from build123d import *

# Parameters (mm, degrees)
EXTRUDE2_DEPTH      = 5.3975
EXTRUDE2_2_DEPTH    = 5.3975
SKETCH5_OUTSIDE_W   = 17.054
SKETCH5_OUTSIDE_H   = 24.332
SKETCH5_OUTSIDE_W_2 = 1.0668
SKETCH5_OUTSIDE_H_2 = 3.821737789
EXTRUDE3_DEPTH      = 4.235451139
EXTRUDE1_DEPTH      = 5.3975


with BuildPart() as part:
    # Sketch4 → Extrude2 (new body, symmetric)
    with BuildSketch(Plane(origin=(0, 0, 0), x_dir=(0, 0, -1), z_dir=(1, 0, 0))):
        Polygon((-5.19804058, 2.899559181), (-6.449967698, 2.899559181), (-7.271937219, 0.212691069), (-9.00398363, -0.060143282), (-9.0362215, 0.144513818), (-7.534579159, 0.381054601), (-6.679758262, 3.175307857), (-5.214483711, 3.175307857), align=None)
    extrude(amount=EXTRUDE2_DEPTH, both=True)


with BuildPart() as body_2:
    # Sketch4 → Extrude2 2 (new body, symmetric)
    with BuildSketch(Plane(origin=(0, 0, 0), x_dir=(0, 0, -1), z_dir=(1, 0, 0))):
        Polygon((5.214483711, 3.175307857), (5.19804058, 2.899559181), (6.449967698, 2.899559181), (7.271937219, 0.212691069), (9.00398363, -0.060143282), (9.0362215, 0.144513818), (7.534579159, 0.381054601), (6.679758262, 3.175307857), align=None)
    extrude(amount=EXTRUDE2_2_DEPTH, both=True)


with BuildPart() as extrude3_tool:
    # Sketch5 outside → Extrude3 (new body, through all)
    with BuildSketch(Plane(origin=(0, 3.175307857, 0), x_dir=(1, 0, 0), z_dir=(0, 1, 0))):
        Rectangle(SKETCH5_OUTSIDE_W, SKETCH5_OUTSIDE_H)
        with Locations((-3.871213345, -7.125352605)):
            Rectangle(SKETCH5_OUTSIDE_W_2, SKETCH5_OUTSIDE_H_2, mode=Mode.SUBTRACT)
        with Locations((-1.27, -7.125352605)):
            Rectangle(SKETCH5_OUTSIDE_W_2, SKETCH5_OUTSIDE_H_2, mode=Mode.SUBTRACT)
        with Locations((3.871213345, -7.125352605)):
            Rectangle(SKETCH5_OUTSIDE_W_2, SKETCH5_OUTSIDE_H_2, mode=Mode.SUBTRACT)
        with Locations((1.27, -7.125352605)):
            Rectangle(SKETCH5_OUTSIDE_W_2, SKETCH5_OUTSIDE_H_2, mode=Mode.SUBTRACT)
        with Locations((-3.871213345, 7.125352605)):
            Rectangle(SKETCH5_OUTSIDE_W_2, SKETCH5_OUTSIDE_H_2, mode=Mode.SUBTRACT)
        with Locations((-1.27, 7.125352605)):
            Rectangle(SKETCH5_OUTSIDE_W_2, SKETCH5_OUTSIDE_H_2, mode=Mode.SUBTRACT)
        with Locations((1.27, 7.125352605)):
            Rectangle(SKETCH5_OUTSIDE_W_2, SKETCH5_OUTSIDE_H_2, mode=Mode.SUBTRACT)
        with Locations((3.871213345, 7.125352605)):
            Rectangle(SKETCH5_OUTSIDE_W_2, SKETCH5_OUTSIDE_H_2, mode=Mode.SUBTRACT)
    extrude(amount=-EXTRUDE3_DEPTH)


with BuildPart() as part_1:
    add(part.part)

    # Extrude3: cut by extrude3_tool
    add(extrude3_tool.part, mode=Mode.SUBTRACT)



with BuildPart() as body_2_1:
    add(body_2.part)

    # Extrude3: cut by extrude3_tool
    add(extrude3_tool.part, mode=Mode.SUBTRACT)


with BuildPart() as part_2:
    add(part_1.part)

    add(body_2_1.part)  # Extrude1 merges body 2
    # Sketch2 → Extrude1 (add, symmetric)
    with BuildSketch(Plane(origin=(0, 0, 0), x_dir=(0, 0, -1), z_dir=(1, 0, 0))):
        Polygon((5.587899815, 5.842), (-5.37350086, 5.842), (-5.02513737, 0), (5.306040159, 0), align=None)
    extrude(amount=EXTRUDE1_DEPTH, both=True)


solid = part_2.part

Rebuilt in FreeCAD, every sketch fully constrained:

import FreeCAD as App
import Part
import Sketcher
Q = App.Units.Quantity


def add_polygon(sketch, points):
    """Adds a closed chain of lines whose ends are joined by coincident constraints."""
    first, n = sketch.GeometryCount, len(points)
    for a, b in zip(points, points[1:] + points[:1]):
        sketch.addGeometry(Part.LineSegment(App.Vector(*a, 0), App.Vector(*b, 0)), False)
    for i in range(n):
        sketch.addConstraint(Sketcher.Constraint("Coincident", first + i, 2, first + (i + 1) % n, 1))

doc = App.newDocument("Part")
body = doc.addObject("PartDesign::Body", "Body")

sketch1 = body.newObject("Sketcher::SketchObject", "Sketch")
sketch1.AttachmentSupport = (doc.getObject("YZ_Plane"), [""])
sketch1.MapMode = "FlatFace"
add_polygon(sketch1, [(2.9, 6.45), (2.9, 5.2), (3.18, 5.21), (3.18, 6.68), (0.38, 7.53), (0.14, 9.04), (-0.06, 9), (0.21, 7.27)])
sketch1.addConstraint(Sketcher.Constraint("Vertical", 0))
sketch1.addConstraint(Sketcher.Constraint("Vertical", 2))
sketch1.addConstraint(Sketcher.Constraint("Perpendicular", 4, 5))
sketch1.addConstraint(Sketcher.Constraint("Perpendicular", 5, 6))
sketch1.addConstraint(Sketcher.Constraint("Parallel", 3, 7))
sketch1.addConstraint(Sketcher.Constraint("DistanceY", 1, 2, 5, 2, Q("3.7895 mm")))
sketch1.addConstraint(Sketcher.Constraint("Distance", 1, Q("0.276238 mm")))
sketch1.addConstraint(Sketcher.Constraint("Distance", 4, Q("1.520158 mm")))
sketch1.addConstraint(Sketcher.Constraint("Distance", 5, Q("0.207181 mm")))
sketch1.addConstraint(Sketcher.Constraint("DistanceY", 0, 2, 0, 1, Q("1.251927 mm")))
sketch1.addConstraint(Sketcher.Constraint("DistanceY", 2, 1, 2, 2, Q("1.465275 mm")))
sketch1.addConstraint(Sketcher.Constraint("DistanceX", -1, 1, 0, 2, Q("2.899559 mm")))
sketch1.addConstraint(Sketcher.Constraint("DistanceY", -1, 1, 0, 2, Q("5.198041 mm")))
sketch1.addConstraint(Sketcher.Constraint("DistanceY", -1, 1, 2, 2, Q("6.679758 mm")))
sketch1.addConstraint(Sketcher.Constraint("DistanceY", -1, 1, 3, 2, Q("7.534579 mm")))
sketch1.addConstraint(Sketcher.Constraint("DistanceX", -1, 1, 6, 2, Q("0.212691 mm")))
pad1 = body.newObject("PartDesign::Pad", "Pad")
pad1.Profile = sketch1
pad1.Length = Q("0.425 in")
pad1.Midplane = True
body2 = doc.addObject("PartDesign::Body", "Body001")

sketch2 = body2.newObject("Sketcher::SketchObject", "Sketch001")
sketch2.AttachmentSupport = (doc.getObject("YZ_Plane001"), [""])
sketch2.MapMode = "FlatFace"
add_polygon(sketch2, [(3.18, -5.21), (2.9, -5.2), (2.9, -6.45), (0.21, -7.27), (-0.06, -9), (0.14, -9.04), (0.38, -7.53), (3.18, -6.68)])
sketch2.addConstraint(Sketcher.Constraint("Vertical", 1))
sketch2.addConstraint(Sketcher.Constraint("Vertical", 7))
sketch2.addConstraint(Sketcher.Constraint("Perpendicular", 3, 4))
sketch2.addConstraint(Sketcher.Constraint("Perpendicular", 4, 5))
sketch2.addConstraint(Sketcher.Constraint("Parallel", 2, 6))
sketch2.addConstraint(Sketcher.Constraint("Distance", 0, Q("0.276238 mm")))
sketch2.addConstraint(Sketcher.Constraint("Distance", 4, Q("0.207181 mm")))
sketch2.addConstraint(Sketcher.Constraint("Distance", 5, Q("1.520158 mm")))
sketch2.addConstraint(Sketcher.Constraint("DistanceY", 1, 2, 1, 1, Q("1.251927 mm")))
sketch2.addConstraint(Sketcher.Constraint("DistanceY", 7, 1, 7, 2, Q("1.465275 mm")))
sketch2.addConstraint(Sketcher.Constraint("DistanceX", -1, 1, 0, 2, Q("2.899559 mm")))
sketch2.addConstraint(Sketcher.Constraint("DistanceY", 0, 2, -1, 1, Q("5.198041 mm")))
sketch2.addConstraint(Sketcher.Constraint("DistanceX", -1, 1, 2, 2, Q("0.212691 mm")))
sketch2.addConstraint(Sketcher.Constraint("DistanceY", 4, 2, -1, 1, Q("9.036221 mm")))
sketch2.addConstraint(Sketcher.Constraint("DistanceY", 5, 2, -1, 1, Q("7.534579 mm")))
sketch2.addConstraint(Sketcher.Constraint("DistanceY", 6, 2, -1, 1, Q("6.679758 mm")))
pad2 = body2.newObject("PartDesign::Pad", "Pad001")
pad2.Profile = sketch2
pad2.Length = Q("0.425 in")
pad2.Midplane = True
body3 = doc.addObject("PartDesign::Body", "Body002")

sketch3 = body3.newObject("Sketcher::SketchObject", "Sketch002")
sketch3.AttachmentSupport = (doc.getObject("XZ_Plane002"), [""])
sketch3.MapMode = "FlatFace"
sketch3.AttachmentOffset = App.Placement(App.Vector(0, 0, -3.175308), App.Rotation())
add_polygon(sketch3, [(-8.5, -12.2), (-8.5, 12.2), (8.5, 12.2), (8.5, -12.2)])
add_polygon(sketch3, [(-3.3, 9), (-4.4, 9), (-4.4, 5.2), (-3.3, 5.2)])
add_polygon(sketch3, [(-0.7, 9), (-1.8, 9), (-1.8, 5.2), (-0.7, 5.2)])
add_polygon(sketch3, [(1.8, 9), (0.7, 9), (0.7, 5.2), (1.8, 5.2)])
add_polygon(sketch3, [(4.4, 9), (3.3, 9), (3.3, 5.2), (4.4, 5.2)])
add_polygon(sketch3, [(-3.3, -5.2), (-4.4, -5.2), (-4.4, -9), (-3.3, -9)])
add_polygon(sketch3, [(-0.7, -5.2), (-1.8, -5.2), (-1.8, -9), (-0.7, -9)])
add_polygon(sketch3, [(1.8, -5.2), (0.7, -5.2), (0.7, -9), (1.8, -9)])
add_polygon(sketch3, [(4.4, -5.2), (3.3, -5.2), (3.3, -9), (4.4, -9)])
sketch3.addConstraint(Sketcher.Constraint("Vertical", 0))
sketch3.addConstraint(Sketcher.Constraint("Horizontal", 1))
sketch3.addConstraint(Sketcher.Constraint("Vertical", 2))
sketch3.addConstraint(Sketcher.Constraint("Horizontal", 3))
sketch3.addConstraint(Sketcher.Constraint("Horizontal", 4))
sketch3.addConstraint(Sketcher.Constraint("Vertical", 5))
sketch3.addConstraint(Sketcher.Constraint("Horizontal", 6))
sketch3.addConstraint(Sketcher.Constraint("Vertical", 7))
sketch3.addConstraint(Sketcher.Constraint("Horizontal", 8))
sketch3.addConstraint(Sketcher.Constraint("Vertical", 9))
sketch3.addConstraint(Sketcher.Constraint("Horizontal", 10))
sketch3.addConstraint(Sketcher.Constraint("Vertical", 11))
sketch3.addConstraint(Sketcher.Constraint("Horizontal", 12))
sketch3.addConstraint(Sketcher.Constraint("Vertical", 13))
sketch3.addConstraint(Sketcher.Constraint("Horizontal", 14))
sketch3.addConstraint(Sketcher.Constraint("Vertical", 15))
sketch3.addConstraint(Sketcher.Constraint("Horizontal", 16))
sketch3.addConstraint(Sketcher.Constraint("Vertical", 17))
sketch3.addConstraint(Sketcher.Constraint("Horizontal", 18))
sketch3.addConstraint(Sketcher.Constraint("Vertical", 19))
sketch3.addConstraint(Sketcher.Constraint("Horizontal", 20))
sketch3.addConstraint(Sketcher.Constraint("Vertical", 21))
sketch3.addConstraint(Sketcher.Constraint("Horizontal", 22))
sketch3.addConstraint(Sketcher.Constraint("Vertical", 23))
sketch3.addConstraint(Sketcher.Constraint("Horizontal", 24))
sketch3.addConstraint(Sketcher.Constraint("Vertical", 25))
sketch3.addConstraint(Sketcher.Constraint("Horizontal", 26))
sketch3.addConstraint(Sketcher.Constraint("Vertical", 27))
sketch3.addConstraint(Sketcher.Constraint("Horizontal", 28))
sketch3.addConstraint(Sketcher.Constraint("Vertical", 29))
sketch3.addConstraint(Sketcher.Constraint("Horizontal", 30))
sketch3.addConstraint(Sketcher.Constraint("Vertical", 31))
sketch3.addConstraint(Sketcher.Constraint("Horizontal", 32))
sketch3.addConstraint(Sketcher.Constraint("Vertical", 33))
sketch3.addConstraint(Sketcher.Constraint("Horizontal", 34))
sketch3.addConstraint(Sketcher.Constraint("Vertical", 35))
sketch3.addConstraint(Sketcher.Constraint("Symmetric", 0, 2, 2, 2, -1, 1))
sketch3.addConstraint(Sketcher.Constraint("Symmetric", 18, 2, 20, 2, -1, 1))
sketch3.addConstraint(Sketcher.Constraint("Symmetric", 16, 2, 22, 2, -1, 1))
sketch3.addConstraint(Sketcher.Constraint("Symmetric", 14, 2, 24, 2, -1, 1))
sketch3.addConstraint(Sketcher.Constraint("Symmetric", 12, 2, 26, 2, -1, 1))
sketch3.addConstraint(Sketcher.Constraint("Symmetric", 10, 2, 28, 2, -1, 1))
sketch3.addConstraint(Sketcher.Constraint("Symmetric", 8, 2, 30, 2, -1, 1))
sketch3.addConstraint(Sketcher.Constraint("Symmetric", 6, 2, 32, 2, -1, 1))
sketch3.addConstraint(Sketcher.Constraint("Symmetric", 4, 2, 34, 2, -1, 1))
sketch3.addConstraint(Sketcher.Constraint("Symmetric", 11, 2, 12, 2, -2))
sketch3.addConstraint(Sketcher.Constraint("Symmetric", 9, 2, 14, 2, -2))
sketch3.addConstraint(Sketcher.Constraint("Symmetric", 7, 2, 16, 2, -2))
sketch3.addConstraint(Sketcher.Constraint("Symmetric", 5, 2, 18, 2, -2))
sketch3.addConstraint(Sketcher.Constraint("Horizontal", 7, 2, 8, 2))
sketch3.addConstraint(Sketcher.Constraint("Horizontal", 6, 2, 9, 2))
sketch3.addConstraint(Sketcher.Constraint("Equal", 6, 8))
sketch3.addConstraint(Sketcher.Constraint("DistanceX", 8, 2, 12, 2, Q("0.1 in")))
sketch3.addConstraint(Sketcher.Constraint("DistanceX", 4, 2, 4, 1, Q("0.042 in")))
sketch3.addConstraint(Sketcher.Constraint("DistanceX", 1, 1, 1, 2, Q("17.054 mm")))
sketch3.addConstraint(Sketcher.Constraint("DistanceY", 0, 1, 0, 2, Q("24.332 mm")))
sketch3.addConstraint(Sketcher.Constraint("DistanceY", 5, 2, 5, 1, Q("3.821738 mm")))
sketch3.addConstraint(Sketcher.Constraint("DistanceY", -1, 1, 4, 2, Q("9.036221 mm")))
sketch3.addConstraint(Sketcher.Constraint("DistanceX", 4, 2, -1, 1, Q("4.404613 mm")))
pad3 = body3.newObject("PartDesign::Pad", "Pad002")
pad3.Profile = sketch3
pad3.Length = 4.235451
body.AllowCompound = True
doc.recompute()

body4 = doc.addObject("PartDesign::Body", "Body003")
body4.BaseFeature = body3
boolean = body.newObject("PartDesign::Boolean", "Boolean")
boolean.Type = "Cut"
boolean.addObjects([body4])
doc.recompute()
body2.AllowCompound = True
doc.recompute()

boolean2 = body2.newObject("PartDesign::Boolean", "Boolean001")
boolean2.Type = "Cut"
boolean2.addObjects([body3])
body.AllowCompound = True
doc.recompute()

boolean3 = body.newObject("PartDesign::Boolean", "Boolean002")
boolean3.Type = "Fuse"
boolean3.addObjects([body2])

sketch4 = body.newObject("Sketcher::SketchObject", "Sketch003")
sketch4.AttachmentSupport = (doc.getObject("YZ_Plane"), [""])
sketch4.MapMode = "FlatFace"
add_polygon(sketch4, [(6, -6), (6, 5), (0, 5), (0, -5)])
sketch4.addConstraint(Sketcher.Constraint("Vertical", 0))
sketch4.addConstraint(Sketcher.Constraint("Vertical", 2))
sketch4.addConstraint(Sketcher.Constraint("PointOnObject", 1, 2, -2))
sketch4.addConstraint(Sketcher.Constraint("DistanceX", -1, 1, 0, 2, Q("0.23 in")))
sketch4.addConstraint(Sketcher.Constraint("DistanceY", 0, 1, 0, 2, Q("10.961401 mm")))
sketch4.addConstraint(Sketcher.Constraint("DistanceY", -1, 1, 0, 2, Q("5.373501 mm")))
sketch4.addConstraint(Sketcher.Constraint("DistanceY", 2, 2, 2, 1, Q("10.331178 mm")))
sketch4.addConstraint(Sketcher.Constraint("DistanceY", 2, 2, -1, 1, Q("5.30604 mm")))
pad4 = body.newObject("PartDesign::Pad", "Pad003")
pad4.Profile = sketch4
pad4.Length = Q("0.425 in")
pad4.Midplane = True

doc.recompute()
